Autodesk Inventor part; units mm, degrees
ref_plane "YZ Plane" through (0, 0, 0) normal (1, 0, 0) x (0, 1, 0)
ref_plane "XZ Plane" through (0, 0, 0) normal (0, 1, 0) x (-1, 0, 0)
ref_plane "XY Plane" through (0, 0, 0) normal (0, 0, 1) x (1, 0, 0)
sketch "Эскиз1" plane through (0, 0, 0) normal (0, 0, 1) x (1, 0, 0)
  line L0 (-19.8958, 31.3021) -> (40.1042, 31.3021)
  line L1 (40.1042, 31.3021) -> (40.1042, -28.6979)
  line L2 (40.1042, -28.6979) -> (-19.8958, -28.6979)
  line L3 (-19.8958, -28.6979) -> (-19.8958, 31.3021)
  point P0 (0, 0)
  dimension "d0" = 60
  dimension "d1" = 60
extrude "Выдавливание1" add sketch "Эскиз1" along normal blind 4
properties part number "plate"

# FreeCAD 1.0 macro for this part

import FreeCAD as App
import Part
import Sketcher
from FreeCAD import Vector

doc = App.newDocument("Part")
body = doc.addObject("PartDesign::Body", "Body")

# Sketch on XY plane
sketch1 = body.newObject("Sketcher::SketchObject", "Sketch")
sketch1.AttachmentSupport = (doc.getObject("XY_Plane"), [""])
sketch1.MapMode = "FlatFace"
sketch1.addGeometry(Part.LineSegment(Vector(40, 31, 0), Vector(-20, 31, 0)), False)
sketch1.addGeometry(Part.LineSegment(Vector(-20, 31, 0), Vector(-20, -29, 0)), False)
sketch1.addGeometry(Part.LineSegment(Vector(-20, -29, 0), Vector(40, -29, 0)), False)
sketch1.addGeometry(Part.LineSegment(Vector(40, -29, 0), Vector(40, 31, 0)), False)
sketch1.addConstraint(Sketcher.Constraint("Coincident", 0, 2, 1, 1))
sketch1.addConstraint(Sketcher.Constraint("Coincident", 1, 2, 2, 1))
sketch1.addConstraint(Sketcher.Constraint("Coincident", 2, 2, 3, 1))
sketch1.addConstraint(Sketcher.Constraint("Coincident", 3, 2, 0, 1))
sketch1.addConstraint(Sketcher.Constraint("Horizontal", 0))
sketch1.addConstraint(Sketcher.Constraint("Vertical", 1))
sketch1.addConstraint(Sketcher.Constraint("Horizontal", 2))
sketch1.addConstraint(Sketcher.Constraint("Vertical", 3))
sketch1.addConstraint(Sketcher.Constraint("Equal", 2, 1))
sketch1.addConstraint(Sketcher.Constraint("DistanceX", 0, 2, 0, 1, 60.0))
sketch1.addConstraint(Sketcher.Constraint("DistanceY", -1, 1, 0, 2, 31.302))
sketch1.addConstraint(Sketcher.Constraint("DistanceX", 0, 2, -1, 1, 19.8958))
pad1 = body.newObject("PartDesign::Pad", "Pad")
pad1.Profile = sketch1
pad1.Length = 4

doc.recompute()
